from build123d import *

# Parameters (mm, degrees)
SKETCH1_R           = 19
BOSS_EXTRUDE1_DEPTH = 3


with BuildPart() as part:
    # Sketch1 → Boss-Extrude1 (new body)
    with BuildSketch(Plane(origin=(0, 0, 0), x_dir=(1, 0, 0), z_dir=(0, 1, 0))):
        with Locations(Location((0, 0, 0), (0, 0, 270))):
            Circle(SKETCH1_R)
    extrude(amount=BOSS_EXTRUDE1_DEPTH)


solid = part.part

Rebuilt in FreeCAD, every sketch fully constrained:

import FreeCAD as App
import Part
import Sketcher

doc = App.newDocument("Part")
body = doc.addObject("PartDesign::Body", "Body")

sketch1 = body.newObject("Sketcher::SketchObject", "Sketch")
sketch1.AttachmentSupport = (doc.getObject("XZ_Plane"), [""])
sketch1.MapMode = "FlatFace"
sketch1.addGeometry(Part.Circle(App.Vector(0, 0, 0), App.Vector(0, 0, 1), 19), False)
sketch1.addConstraint(Sketcher.Constraint("Coincident", 0, 3, -1, 1))
sketch1.addConstraint(Sketcher.Constraint("Diameter", 0, 38.0))
pad1 = body.newObject("PartDesign::Pad", "Pad")
pad1.Profile = sketch1
pad1.Length = 3
pad1.Reversed = True

doc.recompute()
